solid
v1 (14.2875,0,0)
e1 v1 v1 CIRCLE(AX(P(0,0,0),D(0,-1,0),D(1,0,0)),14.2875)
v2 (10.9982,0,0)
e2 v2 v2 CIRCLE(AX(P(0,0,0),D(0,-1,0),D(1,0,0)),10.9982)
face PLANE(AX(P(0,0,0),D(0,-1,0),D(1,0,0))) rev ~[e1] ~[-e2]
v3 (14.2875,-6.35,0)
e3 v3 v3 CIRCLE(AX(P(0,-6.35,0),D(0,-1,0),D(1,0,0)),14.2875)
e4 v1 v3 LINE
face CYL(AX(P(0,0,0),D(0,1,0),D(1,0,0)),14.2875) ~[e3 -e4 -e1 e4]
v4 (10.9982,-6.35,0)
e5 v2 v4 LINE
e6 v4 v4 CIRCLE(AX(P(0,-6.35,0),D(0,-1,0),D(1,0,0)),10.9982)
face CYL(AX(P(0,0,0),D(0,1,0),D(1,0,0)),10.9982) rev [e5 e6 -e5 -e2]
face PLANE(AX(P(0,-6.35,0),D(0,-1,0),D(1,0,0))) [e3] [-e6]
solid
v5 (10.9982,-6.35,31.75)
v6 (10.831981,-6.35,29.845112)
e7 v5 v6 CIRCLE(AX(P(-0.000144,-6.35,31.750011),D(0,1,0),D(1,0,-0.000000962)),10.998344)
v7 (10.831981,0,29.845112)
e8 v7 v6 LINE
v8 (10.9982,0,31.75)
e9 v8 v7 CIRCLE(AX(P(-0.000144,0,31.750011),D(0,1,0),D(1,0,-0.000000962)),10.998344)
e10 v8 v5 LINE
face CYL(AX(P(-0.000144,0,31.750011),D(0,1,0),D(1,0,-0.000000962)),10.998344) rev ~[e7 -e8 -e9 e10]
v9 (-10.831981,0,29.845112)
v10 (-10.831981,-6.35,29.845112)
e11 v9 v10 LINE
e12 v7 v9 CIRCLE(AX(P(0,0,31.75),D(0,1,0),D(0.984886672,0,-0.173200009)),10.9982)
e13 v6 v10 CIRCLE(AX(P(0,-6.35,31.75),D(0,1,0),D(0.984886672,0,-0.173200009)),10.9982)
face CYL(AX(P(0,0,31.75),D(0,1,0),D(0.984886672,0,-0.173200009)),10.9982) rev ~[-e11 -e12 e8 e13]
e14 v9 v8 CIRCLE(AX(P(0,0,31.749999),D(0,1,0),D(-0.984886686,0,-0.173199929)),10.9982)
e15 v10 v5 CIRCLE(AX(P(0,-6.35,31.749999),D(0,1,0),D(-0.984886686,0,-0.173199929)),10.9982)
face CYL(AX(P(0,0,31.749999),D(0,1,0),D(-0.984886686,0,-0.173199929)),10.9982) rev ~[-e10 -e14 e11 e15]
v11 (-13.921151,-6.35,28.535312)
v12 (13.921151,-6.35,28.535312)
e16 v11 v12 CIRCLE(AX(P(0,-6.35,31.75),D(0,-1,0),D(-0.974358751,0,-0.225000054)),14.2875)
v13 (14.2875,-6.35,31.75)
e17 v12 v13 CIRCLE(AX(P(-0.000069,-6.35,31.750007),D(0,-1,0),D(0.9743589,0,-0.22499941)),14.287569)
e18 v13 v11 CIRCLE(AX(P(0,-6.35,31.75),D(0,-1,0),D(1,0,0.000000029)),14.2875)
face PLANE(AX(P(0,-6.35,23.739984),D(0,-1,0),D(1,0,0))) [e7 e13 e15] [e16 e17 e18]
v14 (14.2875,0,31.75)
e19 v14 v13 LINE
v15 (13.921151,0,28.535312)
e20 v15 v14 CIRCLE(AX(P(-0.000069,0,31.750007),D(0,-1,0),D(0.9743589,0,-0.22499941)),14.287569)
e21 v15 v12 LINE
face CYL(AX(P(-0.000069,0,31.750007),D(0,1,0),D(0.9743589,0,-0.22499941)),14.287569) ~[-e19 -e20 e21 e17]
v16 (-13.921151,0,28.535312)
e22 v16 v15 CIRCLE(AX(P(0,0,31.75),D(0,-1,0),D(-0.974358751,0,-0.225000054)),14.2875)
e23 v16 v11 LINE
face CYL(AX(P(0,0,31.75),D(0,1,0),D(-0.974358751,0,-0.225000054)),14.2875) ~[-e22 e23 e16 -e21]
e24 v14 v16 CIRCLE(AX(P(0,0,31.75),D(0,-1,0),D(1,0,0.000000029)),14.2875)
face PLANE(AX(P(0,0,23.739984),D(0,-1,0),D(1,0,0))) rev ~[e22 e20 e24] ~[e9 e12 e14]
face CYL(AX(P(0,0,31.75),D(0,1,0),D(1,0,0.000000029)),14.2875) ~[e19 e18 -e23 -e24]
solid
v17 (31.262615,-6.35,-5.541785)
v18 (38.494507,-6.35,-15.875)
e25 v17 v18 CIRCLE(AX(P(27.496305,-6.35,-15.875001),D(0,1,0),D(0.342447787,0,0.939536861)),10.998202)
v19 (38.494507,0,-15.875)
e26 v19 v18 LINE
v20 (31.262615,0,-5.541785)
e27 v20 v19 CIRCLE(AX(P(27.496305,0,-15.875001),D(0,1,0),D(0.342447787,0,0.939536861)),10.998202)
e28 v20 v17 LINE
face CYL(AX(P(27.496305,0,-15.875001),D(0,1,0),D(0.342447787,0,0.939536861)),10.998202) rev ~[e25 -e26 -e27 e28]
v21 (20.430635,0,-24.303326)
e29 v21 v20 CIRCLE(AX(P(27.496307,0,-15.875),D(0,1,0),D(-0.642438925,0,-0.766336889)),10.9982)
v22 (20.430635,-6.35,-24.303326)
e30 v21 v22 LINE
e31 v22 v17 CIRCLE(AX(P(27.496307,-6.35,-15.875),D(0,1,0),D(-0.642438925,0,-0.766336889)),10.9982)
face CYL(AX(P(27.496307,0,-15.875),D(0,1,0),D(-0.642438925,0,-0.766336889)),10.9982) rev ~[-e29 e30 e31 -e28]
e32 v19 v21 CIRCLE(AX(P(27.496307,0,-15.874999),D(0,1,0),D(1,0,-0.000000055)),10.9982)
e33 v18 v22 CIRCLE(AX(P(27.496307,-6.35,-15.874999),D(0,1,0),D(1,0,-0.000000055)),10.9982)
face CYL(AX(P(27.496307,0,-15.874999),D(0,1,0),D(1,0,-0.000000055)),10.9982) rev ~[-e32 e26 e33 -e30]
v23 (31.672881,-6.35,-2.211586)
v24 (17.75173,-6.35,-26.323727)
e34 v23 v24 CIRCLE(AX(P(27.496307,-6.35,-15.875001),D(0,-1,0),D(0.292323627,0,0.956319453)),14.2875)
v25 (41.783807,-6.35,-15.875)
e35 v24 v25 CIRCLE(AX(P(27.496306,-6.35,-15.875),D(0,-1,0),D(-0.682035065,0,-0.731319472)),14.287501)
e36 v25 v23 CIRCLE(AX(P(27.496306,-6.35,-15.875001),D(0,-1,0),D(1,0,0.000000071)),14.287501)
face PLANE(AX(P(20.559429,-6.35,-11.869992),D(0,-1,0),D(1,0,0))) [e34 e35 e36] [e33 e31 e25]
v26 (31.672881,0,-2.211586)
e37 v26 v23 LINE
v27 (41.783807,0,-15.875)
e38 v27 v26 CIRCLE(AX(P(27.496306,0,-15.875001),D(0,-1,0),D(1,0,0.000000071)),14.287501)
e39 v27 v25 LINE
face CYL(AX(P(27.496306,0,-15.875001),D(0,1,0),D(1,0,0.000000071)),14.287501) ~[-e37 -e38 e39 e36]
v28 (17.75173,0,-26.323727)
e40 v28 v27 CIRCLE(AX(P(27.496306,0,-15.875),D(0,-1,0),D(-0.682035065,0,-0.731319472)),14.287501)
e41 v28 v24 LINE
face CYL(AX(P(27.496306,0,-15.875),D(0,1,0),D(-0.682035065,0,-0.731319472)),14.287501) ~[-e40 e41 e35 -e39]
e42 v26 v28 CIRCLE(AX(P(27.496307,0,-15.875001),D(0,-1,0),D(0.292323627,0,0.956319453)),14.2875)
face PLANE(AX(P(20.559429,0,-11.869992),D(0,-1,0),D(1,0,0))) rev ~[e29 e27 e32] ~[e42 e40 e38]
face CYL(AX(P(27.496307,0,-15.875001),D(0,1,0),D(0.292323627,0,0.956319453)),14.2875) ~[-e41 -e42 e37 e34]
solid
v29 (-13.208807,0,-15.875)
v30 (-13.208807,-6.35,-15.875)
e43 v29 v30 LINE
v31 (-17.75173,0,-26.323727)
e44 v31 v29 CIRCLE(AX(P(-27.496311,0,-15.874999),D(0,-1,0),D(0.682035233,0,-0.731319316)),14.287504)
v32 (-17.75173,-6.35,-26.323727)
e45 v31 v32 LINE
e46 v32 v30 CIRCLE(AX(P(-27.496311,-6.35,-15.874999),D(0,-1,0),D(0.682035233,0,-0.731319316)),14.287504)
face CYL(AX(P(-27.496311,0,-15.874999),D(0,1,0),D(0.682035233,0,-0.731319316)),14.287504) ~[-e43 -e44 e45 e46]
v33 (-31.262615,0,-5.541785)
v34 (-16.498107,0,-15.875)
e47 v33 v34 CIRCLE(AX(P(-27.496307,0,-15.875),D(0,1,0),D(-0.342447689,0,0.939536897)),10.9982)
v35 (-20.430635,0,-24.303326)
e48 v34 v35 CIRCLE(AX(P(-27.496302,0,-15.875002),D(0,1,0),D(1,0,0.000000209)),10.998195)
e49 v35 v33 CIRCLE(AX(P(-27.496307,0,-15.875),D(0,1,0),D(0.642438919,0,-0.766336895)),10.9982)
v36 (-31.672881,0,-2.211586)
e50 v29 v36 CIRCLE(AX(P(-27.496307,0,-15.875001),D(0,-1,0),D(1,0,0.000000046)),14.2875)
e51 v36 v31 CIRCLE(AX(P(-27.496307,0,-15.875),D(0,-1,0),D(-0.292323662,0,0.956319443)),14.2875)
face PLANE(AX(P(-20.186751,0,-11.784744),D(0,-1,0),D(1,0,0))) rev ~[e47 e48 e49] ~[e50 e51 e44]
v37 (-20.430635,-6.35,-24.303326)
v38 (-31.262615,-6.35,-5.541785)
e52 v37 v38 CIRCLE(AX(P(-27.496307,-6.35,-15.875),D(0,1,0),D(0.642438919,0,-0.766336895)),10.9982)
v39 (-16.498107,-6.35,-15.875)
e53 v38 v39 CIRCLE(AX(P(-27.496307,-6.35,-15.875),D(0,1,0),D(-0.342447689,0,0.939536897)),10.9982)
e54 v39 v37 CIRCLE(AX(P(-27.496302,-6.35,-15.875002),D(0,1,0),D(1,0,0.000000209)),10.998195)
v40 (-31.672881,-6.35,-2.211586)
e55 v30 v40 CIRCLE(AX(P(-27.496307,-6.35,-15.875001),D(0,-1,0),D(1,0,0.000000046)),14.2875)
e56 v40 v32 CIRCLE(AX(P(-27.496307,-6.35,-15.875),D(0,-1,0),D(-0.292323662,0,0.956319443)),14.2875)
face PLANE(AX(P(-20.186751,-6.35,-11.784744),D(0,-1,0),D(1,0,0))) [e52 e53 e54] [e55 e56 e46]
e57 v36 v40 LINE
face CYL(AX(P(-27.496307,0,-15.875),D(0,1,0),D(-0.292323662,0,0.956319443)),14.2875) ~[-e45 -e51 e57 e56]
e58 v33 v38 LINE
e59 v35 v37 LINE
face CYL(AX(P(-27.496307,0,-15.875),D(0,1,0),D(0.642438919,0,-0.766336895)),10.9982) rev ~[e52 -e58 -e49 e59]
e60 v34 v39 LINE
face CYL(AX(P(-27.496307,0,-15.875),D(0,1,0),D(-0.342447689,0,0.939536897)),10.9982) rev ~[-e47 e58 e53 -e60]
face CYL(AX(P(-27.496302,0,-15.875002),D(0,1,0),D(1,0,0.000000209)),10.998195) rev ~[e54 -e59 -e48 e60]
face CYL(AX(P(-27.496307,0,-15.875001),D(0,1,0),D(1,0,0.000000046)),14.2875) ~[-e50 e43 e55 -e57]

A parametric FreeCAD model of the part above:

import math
import FreeCAD as App
import Part
import Sketcher

V = App.Vector
Q = App.Units.Quantity

doc = App.newDocument("Part")
body = doc.addObject("PartDesign::Body", "Body")
body.AllowCompound = True

sketch1 = body.newObject("Sketcher::SketchObject", "Sketch")
sketch1.AttachmentSupport = (doc.getObject("XZ_Plane"), [""])
sketch1.MapMode = "FlatFace"
sketch1.addGeometry([
    Part.ArcOfCircle(Part.Circle(V(-27.496307, -15.875001, 0), V(0, 0, 1), 14.2875), math.radians(0.000003), math.radians(106.997118)),
    Part.ArcOfCircle(Part.Circle(V(-27.496307, -15.875, 0), V(0, 0, 1), 14.2875), math.radians(106.997122), math.radians(313.002878)),
    Part.ArcOfCircle(Part.Circle(V(-27.496311, -15.874999, 0), V(0, 0, 1), 14.287504), math.radians(-46.997111), math.radians(-0.000004)),
    Part.ArcOfCircle(Part.Circle(V(-27.496307, -15.875, 0), V(0, 0, 1), 10.9982), math.radians(-0.000002), math.radians(110.026071)),
    Part.ArcOfCircle(Part.Circle(V(-27.496302, -15.875002, 0), V(0, 0, 1), 10.998195), math.radians(-50.026086), math.radians(0.000012)),
    Part.ArcOfCircle(Part.Circle(V(-27.496307, -15.875, 0), V(0, 0, 1), 10.9982), math.radians(110.026072), math.radians(309.973925)),
    Part.ArcOfCircle(Part.Circle(V(0, 31.75, 0), V(0, 0, 1), 14.2875), math.radians(-166.997119), math.radians(-13.002881)),
    Part.ArcOfCircle(Part.Circle(V(-0.000069, 31.750007, 0), V(0, 0, 1), 14.287569), math.radians(-13.002843), math.radians(-0.000027)),
    Part.ArcOfCircle(Part.Circle(V(0, 31.75, 0), V(0, 0, 1), 14.2875), math.radians(0.000002), math.radians(193.002878)),
    Part.ArcOfCircle(Part.Circle(V(0, 31.75, 0), V(0, 0, 1), 10.9982), math.radians(-170.026073), math.radians(-9.973927)),
    Part.ArcOfCircle(Part.Circle(V(0, 31.749999, 0), V(0, 0, 1), 10.9982), math.radians(0.000003), math.radians(189.973922)),
    Part.ArcOfCircle(Part.Circle(V(-0.000144, 31.750011, 0), V(0, 0, 1), 10.998344), math.radians(-9.973849), math.radians(-0.000055)),
    Part.Circle(V(0, 0, 0), V(0, 0, 1), 14.2875),
    Part.Circle(V(0, 0, 0), V(0, 0, 1), 10.9982),
    Part.ArcOfCircle(Part.Circle(V(27.496307, -15.875001, 0), V(0, 0, 1), 14.2875), math.radians(73.00288), math.radians(226.99712)),
    Part.ArcOfCircle(Part.Circle(V(27.496306, -15.875, 0), V(0, 0, 1), 14.287501), math.radians(-133.002876), math.radians(-0.000002)),
    Part.ArcOfCircle(Part.Circle(V(27.496306, -15.875001, 0), V(0, 0, 1), 14.287501), math.radians(0.000004), math.radians(73.002876)),
    Part.ArcOfCircle(Part.Circle(V(27.496307, -15.875, 0), V(0, 0, 1), 10.9982), math.radians(69.973929), math.radians(230.026075)),
    Part.ArcOfCircle(Part.Circle(V(27.496305, -15.875001, 0), V(0, 0, 1), 10.998202), math.radians(0.000006), math.radians(69.973923)),
    Part.ArcOfCircle(Part.Circle(V(27.496307, -15.874999, 0), V(0, 0, 1), 10.9982), math.radians(-129.973925), math.radians(-0.000003)),
], False)
sketch1.addConstraint([
    Sketcher.Constraint("Coincident", 0, 2, 1, 1),
    Sketcher.Constraint("Coincident", 1, 2, 2, 1),
    Sketcher.Constraint("Coincident", 2, 2, 0, 1),
    Sketcher.Constraint("Coincident", 3, 1, 4, 2),
    Sketcher.Constraint("Coincident", 4, 1, 5, 2),
    Sketcher.Constraint("Coincident", 5, 1, 3, 2),
    Sketcher.Constraint("Coincident", 6, 2, 7, 1),
    Sketcher.Constraint("Coincident", 7, 2, 8, 1),
    Sketcher.Constraint("Coincident", 8, 2, 6, 1),
    Sketcher.Constraint("Coincident", 9, 1, 10, 2),
    Sketcher.Constraint("Coincident", 10, 1, 11, 2),
    Sketcher.Constraint("Coincident", 11, 1, 9, 2),
    Sketcher.Constraint("Coincident", 14, 2, 15, 1),
    Sketcher.Constraint("Coincident", 15, 2, 16, 1),
    Sketcher.Constraint("Coincident", 16, 2, 14, 1),
    Sketcher.Constraint("Coincident", 17, 1, 18, 2),
    Sketcher.Constraint("Coincident", 18, 1, 19, 2),
    Sketcher.Constraint("Coincident", 19, 1, 17, 2),
    Sketcher.Constraint("Coincident", 12, 3, -1, 1),
    Sketcher.Constraint("Coincident", 13, 3, -1, 1),
    Sketcher.Constraint("Coincident", 1, 3, 0, 3),
    Sketcher.Constraint("Coincident", 3, 3, 0, 3),
    Sketcher.Constraint("Coincident", 4, 3, 0, 3),
    Sketcher.Constraint("Coincident", 8, 3, 6, 3),
    Sketcher.Constraint("Coincident", 9, 3, 6, 3),
    Sketcher.Constraint("Coincident", 10, 3, 6, 3),
    Sketcher.Constraint("Coincident", 15, 3, 14, 3),
    Sketcher.Constraint("Coincident", 17, 3, 14, 3),
    Sketcher.Constraint("Coincident", 18, 3, 14, 3),
    Sketcher.Constraint("PointOnObject", 6, 3, -2),
    Sketcher.Constraint("Diameter", 12, Q("1.125 in")),
    Sketcher.Constraint("Diameter", 13, Q("0.866 in")),
    Sketcher.Constraint("Radius", 0, Q("0.5625 in")),
    Sketcher.Constraint("Radius", 3, Q("0.433 in")),
    Sketcher.Constraint("Radius", 5, Q("0.433 in")),
    Sketcher.Constraint("Radius", 6, Q("0.5625 in")),
    Sketcher.Constraint("Radius", 9, Q("0.433 in")),
    Sketcher.Constraint("Radius", 14, Q("0.5625 in")),
    Sketcher.Constraint("Radius", 16, Q("0.5625 in")),
    Sketcher.Constraint("Radius", 17, Q("0.433 in")),
    Sketcher.Constraint("Radius", 19, Q("0.433 in")),
    Sketcher.Constraint("Radius", 2, Q("0.5625002 in")),
    Sketcher.Constraint("DistanceY", -1, 1, 6, 3, Q("1.25 in")),
    Sketcher.Constraint("DistanceY", -1, 1, 7, 2, Q("1.25 in")),
    Sketcher.Constraint("DistanceY", -1, 1, 10, 1, Q("1.25 in")),
    Sketcher.Constraint("DistanceY", 0, 3, -1, 1, Q("0.625 in")),
    Sketcher.Constraint("DistanceY", 14, 3, -1, 1, Q("0.625 in")),
    Sketcher.Constraint("DistanceY", 2, 2, -1, 1, Q("0.625 in")),
    Sketcher.Constraint("DistanceY", 3, 1, -1, 1, Q("0.625 in")),
    Sketcher.Constraint("DistanceY", 15, 2, -1, 1, Q("0.625 in")),
    Sketcher.Constraint("DistanceY", 18, 1, -1, 1, Q("0.625 in")),
    Sketcher.Constraint("Radius", 7, 14.287569),
    Sketcher.Constraint("Radius", 11, 10.998344),
    Sketcher.Constraint("DistanceX", 4, 3, -1, 1, 27.496302),
    Sketcher.Constraint("DistanceY", 1, 2, 4, 1, 2.020401),
    Sketcher.Constraint("DistanceY", 5, 1, 0, 2, 3.330199),
    Sketcher.Constraint("DistanceY", 8, 2, 11, 3, 3.214699),
    Sketcher.Constraint("DistanceY", 8, 2, 9, 1, 1.3098),
    Sketcher.Constraint("DistanceY", 6, 2, 11, 1, 1.3098),
    Sketcher.Constraint("DistanceY", 17, 1, 16, 2, 3.330199),
    Sketcher.Constraint("DistanceY", 14, 2, 19, 1, 2.020401),
    Sketcher.Constraint("DistanceX", 0, 2, -1, 1, 31.672881),
    Sketcher.Constraint("DistanceX", 1, 2, -1, 1, 17.75173),
    Sketcher.Constraint("DistanceX", -1, 1, 6, 2, 13.921151),
    Sketcher.Constraint("DistanceX", -1, 1, 14, 2, 17.75173),
    Sketcher.Constraint("DistanceX", -1, 1, 16, 2, 31.672881),
    Sketcher.Constraint("DistanceX", 4, 3, 14, 3, 54.992609),
])
pad1 = body.newObject("PartDesign::Pad", "Pad")
pad1.Profile = sketch1
pad1.Length = Q("0.25 in")

doc.recompute()
